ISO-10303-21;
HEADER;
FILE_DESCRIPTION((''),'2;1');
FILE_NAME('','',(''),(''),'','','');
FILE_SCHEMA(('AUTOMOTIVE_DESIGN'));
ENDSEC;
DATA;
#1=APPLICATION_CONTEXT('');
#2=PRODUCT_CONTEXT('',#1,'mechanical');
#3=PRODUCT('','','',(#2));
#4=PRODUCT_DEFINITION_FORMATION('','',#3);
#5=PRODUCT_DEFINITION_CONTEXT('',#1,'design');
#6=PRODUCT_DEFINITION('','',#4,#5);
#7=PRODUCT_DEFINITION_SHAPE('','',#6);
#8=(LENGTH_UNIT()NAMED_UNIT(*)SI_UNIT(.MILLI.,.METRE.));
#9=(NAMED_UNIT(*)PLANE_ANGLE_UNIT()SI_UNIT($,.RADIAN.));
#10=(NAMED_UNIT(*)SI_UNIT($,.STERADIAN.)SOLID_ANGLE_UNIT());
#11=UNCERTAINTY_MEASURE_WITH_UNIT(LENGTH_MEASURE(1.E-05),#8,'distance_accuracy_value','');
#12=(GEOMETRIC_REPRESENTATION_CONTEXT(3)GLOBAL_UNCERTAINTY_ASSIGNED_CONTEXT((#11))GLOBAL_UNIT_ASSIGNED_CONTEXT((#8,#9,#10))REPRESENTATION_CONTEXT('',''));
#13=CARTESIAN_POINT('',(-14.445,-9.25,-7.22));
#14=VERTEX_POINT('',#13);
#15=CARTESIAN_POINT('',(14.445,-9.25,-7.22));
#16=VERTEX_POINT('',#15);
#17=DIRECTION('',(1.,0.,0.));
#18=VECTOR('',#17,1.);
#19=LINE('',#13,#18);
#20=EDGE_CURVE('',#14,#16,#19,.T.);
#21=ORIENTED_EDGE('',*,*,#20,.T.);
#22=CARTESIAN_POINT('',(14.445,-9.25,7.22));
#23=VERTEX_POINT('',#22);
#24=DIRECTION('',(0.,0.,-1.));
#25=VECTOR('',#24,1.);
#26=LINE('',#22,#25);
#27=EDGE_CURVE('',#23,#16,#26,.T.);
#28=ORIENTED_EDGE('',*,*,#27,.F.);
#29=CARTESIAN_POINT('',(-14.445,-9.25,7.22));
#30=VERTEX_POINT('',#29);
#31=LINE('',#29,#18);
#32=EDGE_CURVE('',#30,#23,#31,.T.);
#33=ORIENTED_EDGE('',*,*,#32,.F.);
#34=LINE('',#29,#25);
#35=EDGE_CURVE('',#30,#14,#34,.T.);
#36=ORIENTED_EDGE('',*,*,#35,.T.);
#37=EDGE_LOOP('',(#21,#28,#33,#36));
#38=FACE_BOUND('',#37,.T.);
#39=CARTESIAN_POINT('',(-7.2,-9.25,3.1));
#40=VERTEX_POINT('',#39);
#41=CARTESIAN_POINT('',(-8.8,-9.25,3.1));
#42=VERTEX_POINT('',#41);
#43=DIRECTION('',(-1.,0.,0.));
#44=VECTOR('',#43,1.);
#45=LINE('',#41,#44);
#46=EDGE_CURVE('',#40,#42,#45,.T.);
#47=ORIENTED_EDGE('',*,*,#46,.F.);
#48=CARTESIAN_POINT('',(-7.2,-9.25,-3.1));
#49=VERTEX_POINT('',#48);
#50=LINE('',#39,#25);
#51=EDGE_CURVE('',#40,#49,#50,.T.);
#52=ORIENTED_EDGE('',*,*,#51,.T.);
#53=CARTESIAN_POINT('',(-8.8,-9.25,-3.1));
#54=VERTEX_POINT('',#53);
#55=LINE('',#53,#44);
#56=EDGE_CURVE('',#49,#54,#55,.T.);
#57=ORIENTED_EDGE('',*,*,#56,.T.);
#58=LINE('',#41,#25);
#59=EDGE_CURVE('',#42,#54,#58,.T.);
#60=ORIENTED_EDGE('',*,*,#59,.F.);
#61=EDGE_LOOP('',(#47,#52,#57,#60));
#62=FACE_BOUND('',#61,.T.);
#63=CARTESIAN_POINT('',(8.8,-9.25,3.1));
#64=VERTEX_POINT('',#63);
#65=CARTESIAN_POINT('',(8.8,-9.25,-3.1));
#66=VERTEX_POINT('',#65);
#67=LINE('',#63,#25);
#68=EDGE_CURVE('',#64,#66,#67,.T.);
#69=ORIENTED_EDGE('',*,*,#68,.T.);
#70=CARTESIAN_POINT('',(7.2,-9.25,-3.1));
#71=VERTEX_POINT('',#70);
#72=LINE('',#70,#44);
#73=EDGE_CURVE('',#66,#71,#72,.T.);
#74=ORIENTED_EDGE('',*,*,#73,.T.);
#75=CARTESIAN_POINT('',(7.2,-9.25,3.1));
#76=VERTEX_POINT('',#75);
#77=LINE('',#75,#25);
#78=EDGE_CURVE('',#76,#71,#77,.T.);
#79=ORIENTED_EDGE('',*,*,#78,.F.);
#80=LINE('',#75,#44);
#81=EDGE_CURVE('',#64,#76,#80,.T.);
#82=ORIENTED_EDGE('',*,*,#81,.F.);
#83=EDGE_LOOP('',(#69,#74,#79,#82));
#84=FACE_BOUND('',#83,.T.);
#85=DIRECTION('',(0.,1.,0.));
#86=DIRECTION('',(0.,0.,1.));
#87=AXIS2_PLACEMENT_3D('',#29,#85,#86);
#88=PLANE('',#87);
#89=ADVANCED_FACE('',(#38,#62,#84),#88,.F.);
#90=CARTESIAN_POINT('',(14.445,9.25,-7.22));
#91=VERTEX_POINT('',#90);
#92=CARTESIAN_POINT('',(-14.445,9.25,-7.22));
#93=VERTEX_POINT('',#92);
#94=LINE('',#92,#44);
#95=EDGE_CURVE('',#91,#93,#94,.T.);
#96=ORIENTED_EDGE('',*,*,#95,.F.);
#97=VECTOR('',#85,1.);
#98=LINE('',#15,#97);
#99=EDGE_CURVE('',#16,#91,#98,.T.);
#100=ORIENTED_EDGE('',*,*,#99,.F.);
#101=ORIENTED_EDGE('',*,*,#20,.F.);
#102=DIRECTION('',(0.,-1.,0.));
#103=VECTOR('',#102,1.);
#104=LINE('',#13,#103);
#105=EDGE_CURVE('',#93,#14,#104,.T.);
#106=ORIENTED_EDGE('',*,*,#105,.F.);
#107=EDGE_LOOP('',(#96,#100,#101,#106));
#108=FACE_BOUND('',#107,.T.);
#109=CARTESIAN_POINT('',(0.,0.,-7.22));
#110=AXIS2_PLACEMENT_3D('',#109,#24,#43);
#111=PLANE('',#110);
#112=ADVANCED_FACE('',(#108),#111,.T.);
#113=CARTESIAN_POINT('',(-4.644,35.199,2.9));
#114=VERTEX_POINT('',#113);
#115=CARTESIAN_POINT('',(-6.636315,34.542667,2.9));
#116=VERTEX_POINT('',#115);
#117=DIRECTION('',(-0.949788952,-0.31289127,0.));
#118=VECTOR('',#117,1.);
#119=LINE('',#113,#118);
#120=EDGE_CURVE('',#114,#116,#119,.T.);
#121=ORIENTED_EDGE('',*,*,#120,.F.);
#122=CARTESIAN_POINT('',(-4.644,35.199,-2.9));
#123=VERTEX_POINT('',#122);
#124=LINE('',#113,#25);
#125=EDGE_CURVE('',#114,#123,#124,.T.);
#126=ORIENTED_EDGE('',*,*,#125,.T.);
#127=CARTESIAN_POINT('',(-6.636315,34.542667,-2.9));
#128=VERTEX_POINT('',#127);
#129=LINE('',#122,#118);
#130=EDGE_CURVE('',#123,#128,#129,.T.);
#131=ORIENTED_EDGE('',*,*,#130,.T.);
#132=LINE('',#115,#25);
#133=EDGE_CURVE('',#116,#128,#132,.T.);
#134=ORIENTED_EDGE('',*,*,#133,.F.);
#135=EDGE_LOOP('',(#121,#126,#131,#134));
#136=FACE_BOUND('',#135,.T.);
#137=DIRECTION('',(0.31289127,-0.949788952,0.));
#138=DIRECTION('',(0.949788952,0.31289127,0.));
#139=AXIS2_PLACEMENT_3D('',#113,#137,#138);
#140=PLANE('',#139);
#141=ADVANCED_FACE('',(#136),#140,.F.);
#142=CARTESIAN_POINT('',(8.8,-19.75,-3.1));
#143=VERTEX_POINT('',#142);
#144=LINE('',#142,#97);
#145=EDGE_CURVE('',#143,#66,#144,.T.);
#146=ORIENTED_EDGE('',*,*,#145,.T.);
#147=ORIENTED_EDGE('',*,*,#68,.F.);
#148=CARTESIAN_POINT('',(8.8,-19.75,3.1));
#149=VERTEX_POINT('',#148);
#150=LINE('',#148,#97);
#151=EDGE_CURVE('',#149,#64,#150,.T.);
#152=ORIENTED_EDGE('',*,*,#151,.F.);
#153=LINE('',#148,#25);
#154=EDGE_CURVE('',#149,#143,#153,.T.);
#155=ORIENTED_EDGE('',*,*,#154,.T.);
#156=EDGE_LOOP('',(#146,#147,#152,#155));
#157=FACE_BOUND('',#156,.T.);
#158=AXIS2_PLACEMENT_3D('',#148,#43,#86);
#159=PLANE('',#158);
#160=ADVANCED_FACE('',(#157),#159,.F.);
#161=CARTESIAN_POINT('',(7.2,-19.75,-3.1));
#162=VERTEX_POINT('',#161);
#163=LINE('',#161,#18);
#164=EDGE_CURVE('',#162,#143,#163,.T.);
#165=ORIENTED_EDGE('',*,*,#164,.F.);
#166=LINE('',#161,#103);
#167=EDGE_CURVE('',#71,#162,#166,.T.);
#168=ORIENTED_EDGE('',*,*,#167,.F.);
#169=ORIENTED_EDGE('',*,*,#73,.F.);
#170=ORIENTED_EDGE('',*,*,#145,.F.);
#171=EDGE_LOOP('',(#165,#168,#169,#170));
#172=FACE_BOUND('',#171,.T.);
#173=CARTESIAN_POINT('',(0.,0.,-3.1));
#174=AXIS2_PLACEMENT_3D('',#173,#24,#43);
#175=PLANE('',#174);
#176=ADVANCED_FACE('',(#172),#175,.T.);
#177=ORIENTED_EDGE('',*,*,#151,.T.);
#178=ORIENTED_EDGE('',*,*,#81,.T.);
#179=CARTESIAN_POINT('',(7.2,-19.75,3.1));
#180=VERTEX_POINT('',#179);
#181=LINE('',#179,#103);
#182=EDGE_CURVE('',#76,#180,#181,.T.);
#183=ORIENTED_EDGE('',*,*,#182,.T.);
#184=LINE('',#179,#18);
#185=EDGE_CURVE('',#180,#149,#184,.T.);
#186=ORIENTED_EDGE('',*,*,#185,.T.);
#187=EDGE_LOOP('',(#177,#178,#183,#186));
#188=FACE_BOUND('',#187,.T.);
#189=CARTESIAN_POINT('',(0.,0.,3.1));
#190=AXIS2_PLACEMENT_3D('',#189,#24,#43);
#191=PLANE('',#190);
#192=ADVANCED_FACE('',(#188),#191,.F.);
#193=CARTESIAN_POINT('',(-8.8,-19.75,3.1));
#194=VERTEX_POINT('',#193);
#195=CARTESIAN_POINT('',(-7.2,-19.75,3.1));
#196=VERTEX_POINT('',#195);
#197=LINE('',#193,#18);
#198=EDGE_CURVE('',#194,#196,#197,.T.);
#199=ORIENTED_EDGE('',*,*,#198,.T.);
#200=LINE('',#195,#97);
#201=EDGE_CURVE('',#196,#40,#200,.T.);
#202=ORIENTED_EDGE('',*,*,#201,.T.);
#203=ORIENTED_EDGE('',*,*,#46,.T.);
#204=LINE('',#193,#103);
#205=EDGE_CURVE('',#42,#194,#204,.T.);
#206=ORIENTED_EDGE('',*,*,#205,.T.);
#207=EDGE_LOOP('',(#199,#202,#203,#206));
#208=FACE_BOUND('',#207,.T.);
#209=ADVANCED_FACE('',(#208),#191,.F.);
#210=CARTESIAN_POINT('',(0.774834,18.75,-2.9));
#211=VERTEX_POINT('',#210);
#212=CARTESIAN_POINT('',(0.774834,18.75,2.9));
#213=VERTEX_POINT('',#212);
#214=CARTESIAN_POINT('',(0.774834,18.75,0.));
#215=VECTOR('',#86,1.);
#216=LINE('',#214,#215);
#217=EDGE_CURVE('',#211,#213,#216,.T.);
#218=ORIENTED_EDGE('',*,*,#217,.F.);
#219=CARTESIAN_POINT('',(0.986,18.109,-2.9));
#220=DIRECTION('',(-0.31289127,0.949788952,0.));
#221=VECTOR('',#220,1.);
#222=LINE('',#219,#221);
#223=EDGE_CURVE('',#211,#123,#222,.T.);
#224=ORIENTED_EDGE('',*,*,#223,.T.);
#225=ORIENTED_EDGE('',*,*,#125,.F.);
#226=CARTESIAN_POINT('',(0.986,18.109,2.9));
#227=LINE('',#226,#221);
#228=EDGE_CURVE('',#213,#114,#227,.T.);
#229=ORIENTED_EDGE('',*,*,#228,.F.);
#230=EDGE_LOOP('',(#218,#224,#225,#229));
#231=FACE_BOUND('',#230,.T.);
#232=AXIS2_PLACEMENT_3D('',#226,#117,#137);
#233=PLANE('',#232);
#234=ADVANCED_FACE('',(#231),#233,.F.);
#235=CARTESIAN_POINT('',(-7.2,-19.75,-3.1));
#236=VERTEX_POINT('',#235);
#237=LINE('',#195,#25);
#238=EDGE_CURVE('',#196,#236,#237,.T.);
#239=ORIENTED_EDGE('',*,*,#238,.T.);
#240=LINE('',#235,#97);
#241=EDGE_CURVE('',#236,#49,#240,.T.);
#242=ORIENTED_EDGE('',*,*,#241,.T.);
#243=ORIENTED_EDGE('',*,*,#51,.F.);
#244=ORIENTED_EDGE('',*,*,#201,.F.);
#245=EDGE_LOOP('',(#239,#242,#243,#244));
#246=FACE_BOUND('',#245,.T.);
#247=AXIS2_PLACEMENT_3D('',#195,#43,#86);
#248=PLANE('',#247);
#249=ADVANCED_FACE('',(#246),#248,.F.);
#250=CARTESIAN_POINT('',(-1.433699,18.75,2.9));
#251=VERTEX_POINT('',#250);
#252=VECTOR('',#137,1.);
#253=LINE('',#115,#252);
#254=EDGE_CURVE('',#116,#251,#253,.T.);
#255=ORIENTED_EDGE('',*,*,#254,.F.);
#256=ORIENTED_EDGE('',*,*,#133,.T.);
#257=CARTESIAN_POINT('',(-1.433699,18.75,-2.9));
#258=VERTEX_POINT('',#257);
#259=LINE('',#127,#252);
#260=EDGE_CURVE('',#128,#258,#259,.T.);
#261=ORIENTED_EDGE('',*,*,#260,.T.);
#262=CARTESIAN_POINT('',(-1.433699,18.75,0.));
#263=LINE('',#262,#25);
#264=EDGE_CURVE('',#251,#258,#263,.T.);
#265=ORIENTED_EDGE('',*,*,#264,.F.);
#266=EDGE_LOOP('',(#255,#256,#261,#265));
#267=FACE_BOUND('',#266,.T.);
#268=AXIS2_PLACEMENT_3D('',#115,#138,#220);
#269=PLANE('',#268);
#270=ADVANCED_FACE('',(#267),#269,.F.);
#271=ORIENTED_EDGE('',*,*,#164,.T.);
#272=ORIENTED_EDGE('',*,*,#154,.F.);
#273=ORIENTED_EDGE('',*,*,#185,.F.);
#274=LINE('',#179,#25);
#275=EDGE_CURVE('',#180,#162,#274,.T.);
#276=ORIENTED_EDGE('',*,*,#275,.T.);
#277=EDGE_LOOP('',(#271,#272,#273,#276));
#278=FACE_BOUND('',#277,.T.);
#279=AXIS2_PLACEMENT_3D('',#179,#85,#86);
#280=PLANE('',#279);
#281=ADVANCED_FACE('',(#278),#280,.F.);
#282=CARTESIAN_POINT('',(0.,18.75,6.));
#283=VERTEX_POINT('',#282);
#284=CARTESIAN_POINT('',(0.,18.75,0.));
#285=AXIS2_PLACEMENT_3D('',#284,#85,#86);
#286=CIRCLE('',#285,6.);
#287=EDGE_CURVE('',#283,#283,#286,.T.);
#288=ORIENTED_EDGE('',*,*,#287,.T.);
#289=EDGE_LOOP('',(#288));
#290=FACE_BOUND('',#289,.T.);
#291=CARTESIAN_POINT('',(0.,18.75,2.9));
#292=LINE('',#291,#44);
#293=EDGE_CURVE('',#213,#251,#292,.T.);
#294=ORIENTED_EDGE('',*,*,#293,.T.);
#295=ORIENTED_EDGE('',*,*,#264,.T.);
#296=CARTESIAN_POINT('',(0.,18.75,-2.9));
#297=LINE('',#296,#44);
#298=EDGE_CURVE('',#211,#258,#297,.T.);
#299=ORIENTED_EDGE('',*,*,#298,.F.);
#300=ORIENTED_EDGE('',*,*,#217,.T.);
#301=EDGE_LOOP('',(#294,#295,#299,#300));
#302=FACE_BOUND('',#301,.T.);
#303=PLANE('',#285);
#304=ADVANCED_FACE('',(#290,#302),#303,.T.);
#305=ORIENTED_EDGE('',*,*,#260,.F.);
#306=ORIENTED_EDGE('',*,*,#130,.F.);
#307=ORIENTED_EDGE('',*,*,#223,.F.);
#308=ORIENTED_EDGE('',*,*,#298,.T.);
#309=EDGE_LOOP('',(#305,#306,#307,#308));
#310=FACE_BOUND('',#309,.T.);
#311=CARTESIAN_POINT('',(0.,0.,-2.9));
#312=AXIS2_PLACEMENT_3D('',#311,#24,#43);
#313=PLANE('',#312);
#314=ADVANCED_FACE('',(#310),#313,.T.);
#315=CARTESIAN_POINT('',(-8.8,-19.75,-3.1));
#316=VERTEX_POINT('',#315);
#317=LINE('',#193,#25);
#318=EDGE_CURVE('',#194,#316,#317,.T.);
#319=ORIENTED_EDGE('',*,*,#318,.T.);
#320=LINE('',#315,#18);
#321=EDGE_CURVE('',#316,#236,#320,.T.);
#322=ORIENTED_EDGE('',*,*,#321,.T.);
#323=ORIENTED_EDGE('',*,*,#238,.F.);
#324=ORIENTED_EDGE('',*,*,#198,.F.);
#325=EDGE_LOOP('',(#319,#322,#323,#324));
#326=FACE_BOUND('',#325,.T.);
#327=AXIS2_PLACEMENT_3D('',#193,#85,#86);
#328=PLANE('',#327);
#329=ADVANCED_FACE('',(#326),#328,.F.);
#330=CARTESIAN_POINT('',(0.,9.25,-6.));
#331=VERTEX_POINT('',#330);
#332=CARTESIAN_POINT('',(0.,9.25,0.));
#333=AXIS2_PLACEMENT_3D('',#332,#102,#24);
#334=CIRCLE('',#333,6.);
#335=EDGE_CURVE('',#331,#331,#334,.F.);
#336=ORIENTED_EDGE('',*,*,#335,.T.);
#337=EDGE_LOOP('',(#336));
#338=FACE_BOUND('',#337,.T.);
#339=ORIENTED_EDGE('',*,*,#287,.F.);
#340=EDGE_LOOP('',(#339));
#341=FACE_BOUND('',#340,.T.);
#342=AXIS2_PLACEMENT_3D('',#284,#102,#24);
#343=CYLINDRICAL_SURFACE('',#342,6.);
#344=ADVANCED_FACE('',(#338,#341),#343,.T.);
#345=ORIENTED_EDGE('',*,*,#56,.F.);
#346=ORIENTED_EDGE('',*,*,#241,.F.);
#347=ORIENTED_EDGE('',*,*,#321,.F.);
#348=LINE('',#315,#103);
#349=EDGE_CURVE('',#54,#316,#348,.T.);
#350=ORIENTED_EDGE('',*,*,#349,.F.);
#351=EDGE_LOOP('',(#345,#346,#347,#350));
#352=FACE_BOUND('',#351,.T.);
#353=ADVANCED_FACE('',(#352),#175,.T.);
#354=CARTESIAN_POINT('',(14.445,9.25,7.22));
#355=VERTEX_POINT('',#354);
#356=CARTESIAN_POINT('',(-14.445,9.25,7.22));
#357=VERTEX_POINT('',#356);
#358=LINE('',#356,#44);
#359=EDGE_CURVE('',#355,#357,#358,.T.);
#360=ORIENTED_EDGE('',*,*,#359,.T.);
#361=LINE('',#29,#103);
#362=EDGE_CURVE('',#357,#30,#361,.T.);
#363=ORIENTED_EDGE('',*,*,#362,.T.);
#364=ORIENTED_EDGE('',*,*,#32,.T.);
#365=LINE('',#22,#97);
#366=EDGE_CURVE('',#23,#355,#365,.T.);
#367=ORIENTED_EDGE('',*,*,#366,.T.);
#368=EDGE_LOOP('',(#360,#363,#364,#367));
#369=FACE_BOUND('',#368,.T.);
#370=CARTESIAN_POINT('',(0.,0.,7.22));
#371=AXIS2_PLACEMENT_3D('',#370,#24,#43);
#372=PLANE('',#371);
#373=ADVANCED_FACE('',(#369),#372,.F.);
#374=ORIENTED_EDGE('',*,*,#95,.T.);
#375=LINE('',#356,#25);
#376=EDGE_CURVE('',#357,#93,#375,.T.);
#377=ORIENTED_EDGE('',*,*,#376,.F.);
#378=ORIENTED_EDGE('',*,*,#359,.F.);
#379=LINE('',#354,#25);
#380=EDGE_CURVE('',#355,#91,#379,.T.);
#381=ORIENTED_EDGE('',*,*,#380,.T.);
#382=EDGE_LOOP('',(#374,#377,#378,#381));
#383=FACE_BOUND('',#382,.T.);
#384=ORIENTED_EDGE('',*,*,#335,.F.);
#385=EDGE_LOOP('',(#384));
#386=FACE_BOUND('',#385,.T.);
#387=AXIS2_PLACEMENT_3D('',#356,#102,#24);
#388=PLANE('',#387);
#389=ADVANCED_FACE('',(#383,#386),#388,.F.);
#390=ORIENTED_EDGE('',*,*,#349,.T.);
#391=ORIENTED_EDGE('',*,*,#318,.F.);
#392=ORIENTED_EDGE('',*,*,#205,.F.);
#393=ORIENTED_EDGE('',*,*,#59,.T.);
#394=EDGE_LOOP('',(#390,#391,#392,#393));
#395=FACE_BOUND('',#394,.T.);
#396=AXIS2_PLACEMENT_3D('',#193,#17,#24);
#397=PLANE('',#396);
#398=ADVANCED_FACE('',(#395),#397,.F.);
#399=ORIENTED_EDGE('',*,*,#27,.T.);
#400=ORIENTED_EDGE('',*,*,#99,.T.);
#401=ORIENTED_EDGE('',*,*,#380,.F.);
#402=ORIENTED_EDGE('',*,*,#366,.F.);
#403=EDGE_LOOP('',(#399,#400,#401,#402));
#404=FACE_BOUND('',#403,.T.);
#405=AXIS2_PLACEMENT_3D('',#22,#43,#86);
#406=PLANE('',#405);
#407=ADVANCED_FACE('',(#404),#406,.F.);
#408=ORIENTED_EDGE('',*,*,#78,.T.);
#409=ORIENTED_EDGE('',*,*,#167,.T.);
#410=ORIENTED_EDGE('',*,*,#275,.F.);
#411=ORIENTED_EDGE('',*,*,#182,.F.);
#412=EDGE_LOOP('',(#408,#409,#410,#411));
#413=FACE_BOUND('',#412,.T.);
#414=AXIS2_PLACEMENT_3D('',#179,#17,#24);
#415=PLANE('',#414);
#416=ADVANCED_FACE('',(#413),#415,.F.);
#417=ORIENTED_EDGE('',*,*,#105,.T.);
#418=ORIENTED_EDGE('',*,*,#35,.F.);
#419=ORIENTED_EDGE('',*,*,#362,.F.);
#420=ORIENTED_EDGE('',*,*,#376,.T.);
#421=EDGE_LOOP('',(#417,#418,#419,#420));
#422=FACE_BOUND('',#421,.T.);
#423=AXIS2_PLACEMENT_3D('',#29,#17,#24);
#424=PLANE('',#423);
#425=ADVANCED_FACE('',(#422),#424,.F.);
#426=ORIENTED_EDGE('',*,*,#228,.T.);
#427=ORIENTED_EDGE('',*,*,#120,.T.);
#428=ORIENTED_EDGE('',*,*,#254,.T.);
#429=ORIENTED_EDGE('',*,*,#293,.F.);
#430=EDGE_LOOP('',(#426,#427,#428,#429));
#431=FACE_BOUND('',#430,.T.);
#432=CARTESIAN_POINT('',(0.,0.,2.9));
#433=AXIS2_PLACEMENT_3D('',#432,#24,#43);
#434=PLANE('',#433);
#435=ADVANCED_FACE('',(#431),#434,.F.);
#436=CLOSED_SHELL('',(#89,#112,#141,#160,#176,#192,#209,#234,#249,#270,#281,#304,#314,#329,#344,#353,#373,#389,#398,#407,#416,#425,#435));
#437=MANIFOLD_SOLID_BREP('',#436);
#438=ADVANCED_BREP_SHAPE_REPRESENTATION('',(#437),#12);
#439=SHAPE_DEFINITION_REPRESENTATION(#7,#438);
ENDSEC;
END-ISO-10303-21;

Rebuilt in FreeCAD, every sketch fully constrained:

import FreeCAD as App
import Part
import Sketcher

V = App.Vector

doc = App.newDocument("Part")
body = doc.addObject("PartDesign::Body", "Body")

# Sketch on XY plane
sketch1 = body.newObject("Sketcher::SketchObject", "Sketch")
sketch1.AttachmentSupport = (doc.getObject("XY_Plane"), [""])
sketch1.MapMode = "FlatFace"
sketch1.addGeometry([
    Part.LineSegment(V(-14, 9, 0), V(-14, -9, 0)),
    Part.LineSegment(V(-14, -9, 0), V(14, -9, 0)),
    Part.LineSegment(V(14, -9, 0), V(14, 9, 0)),
    Part.LineSegment(V(14, 9, 0), V(-14, 9, 0)),
], False)
sketch1.addConstraint([
    Sketcher.Constraint("Coincident", 0, 2, 1, 1),
    Sketcher.Constraint("Coincident", 1, 2, 2, 1),
    Sketcher.Constraint("Coincident", 2, 2, 3, 1),
    Sketcher.Constraint("Coincident", 3, 2, 0, 1),
    Sketcher.Constraint("Vertical", 0),
    Sketcher.Constraint("Horizontal", 1),
    Sketcher.Constraint("Vertical", 2),
    Sketcher.Constraint("Horizontal", 3),
    Sketcher.Constraint("Symmetric", 0, 2, 2, 2, -1, 1),
    Sketcher.Constraint("DistanceY", 0, 2, 0, 1, 18.5),
    Sketcher.Constraint("DistanceX", 1, 1, 1, 2, 28.89),
])
pad1 = body.newObject("PartDesign::Pad", "Pad")
pad1.Profile = sketch1
pad1.Length = 14.44
pad1.Midplane = True

# Sketch on XZ plane
sketch2 = body.newObject("Sketcher::SketchObject", "Sketch001")
sketch2.AttachmentSupport = (doc.getObject("XZ_Plane"), [""])
sketch2.MapMode = "FlatFace"
sketch2.addGeometry(Part.Circle(V(0, 0, 0), V(0, 0, 1), 6), False)
sketch2.addConstraint([
    Sketcher.Constraint("Coincident", 0, 3, -1, 1),
    Sketcher.Constraint("Diameter", 0, 12.0),
])
pad2 = body.newObject("PartDesign::Pad", "Pad001")
pad2.Profile = sketch2
pad2.Length = 18.75
pad2.Reversed = True

# Sketch on XY plane
sketch3 = body.newObject("Sketcher::SketchObject", "Sketch002")
sketch3.AttachmentSupport = (doc.getObject("XY_Plane"), [""])
sketch3.MapMode = "FlatFace"
sketch3.addGeometry([
    Part.LineSegment(V(-1, 17.4, 0), V(1, 18.1, 0)),
    Part.LineSegment(V(1, 18.1, 0), V(-4.6, 35.2, 0)),
    Part.LineSegment(V(-4.6, 35.2, 0), V(-6.6, 34.5, 0)),
    Part.LineSegment(V(-6.6, 34.5, 0), V(-1, 17.4, 0)),
], False)
sketch3.addConstraint([
    Sketcher.Constraint("Coincident", 0, 2, 1, 1),
    Sketcher.Constraint("Coincident", 1, 2, 2, 1),
    Sketcher.Constraint("Coincident", 2, 2, 3, 1),
    Sketcher.Constraint("Coincident", 3, 2, 0, 1),
    Sketcher.Constraint("Perpendicular", 1, 2),
    Sketcher.Constraint("Perpendicular", 2, 3),
    Sketcher.Constraint("DistanceX", 1, 2, 0, 2, 5.63),
    Sketcher.Constraint("DistanceY", 0, 2, 1, 2, 17.09),
    Sketcher.Constraint("DistanceX", -1, 1, 0, 2, 0.986),
    Sketcher.Constraint("DistanceY", -1, 1, 0, 2, 18.109),
    Sketcher.Constraint("DistanceX", 3, 2, -1, 1, 0.986),
    Sketcher.Constraint("DistanceY", -1, 1, 3, 2, 17.391),
])
pad3 = body.newObject("PartDesign::Pad", "Pad002")
pad3.Profile = sketch3
pad3.Length = 5.8
pad3.Midplane = True

# Sketch on XY plane
sketch4 = body.newObject("Sketcher::SketchObject", "Sketch003")
sketch4.AttachmentSupport = (doc.getObject("XY_Plane"), [""])
sketch4.MapMode = "FlatFace"
sketch4.addGeometry([
    Part.LineSegment(V(-8.8, -9.2, 0), V(-8.8, -19.8, 0)),  # 0
    Part.LineSegment(V(-8.8, -19.8, 0), V(-7.2, -19.8, 0)),  # 1
    Part.LineSegment(V(-7.2, -19.8, 0), V(-7.2, -9.2, 0)),  # 2
    Part.LineSegment(V(-7.2, -9.2, 0), V(-8.8, -9.2, 0)),  # 3
    Part.LineSegment(V(7.2, -9.2, 0), V(7.2, -19.8, 0)),  # 4
    Part.LineSegment(V(7.2, -19.8, 0), V(8.8, -19.8, 0)),  # 5
    Part.LineSegment(V(8.8, -19.8, 0), V(8.8, -9.2, 0)),  # 6
    Part.LineSegment(V(8.8, -9.2, 0), V(7.2, -9.2, 0)),  # 7
], False)
sketch4.addConstraint([
    Sketcher.Constraint("Coincident", 0, 2, 1, 1),
    Sketcher.Constraint("Coincident", 1, 2, 2, 1),
    Sketcher.Constraint("Coincident", 2, 2, 3, 1),
    Sketcher.Constraint("Coincident", 3, 2, 0, 1),
    Sketcher.Constraint("Coincident", 4, 2, 5, 1),
    Sketcher.Constraint("Coincident", 5, 2, 6, 1),
    Sketcher.Constraint("Coincident", 6, 2, 7, 1),
    Sketcher.Constraint("Coincident", 7, 2, 4, 1),
    Sketcher.Constraint("Vertical", 0),
    Sketcher.Constraint("Horizontal", 1),
    Sketcher.Constraint("Vertical", 2),
    Sketcher.Constraint("Horizontal", 3),
    Sketcher.Constraint("Vertical", 4),
    Sketcher.Constraint("Horizontal", 5),
    Sketcher.Constraint("Vertical", 6),
    Sketcher.Constraint("Horizontal", 7),
    Sketcher.Constraint("Symmetric", 1, 2, 4, 2, -2),
    Sketcher.Constraint("Symmetric", 3, 2, 6, 2, -2),
    Sketcher.Constraint("DistanceX", 1, 1, 1, 2, 1.6),
    Sketcher.Constraint("DistanceY", 0, 2, 0, 1, 10.5),
    Sketcher.Constraint("DistanceX", 0, 2, 4, 2, 16.0),
    Sketcher.Constraint("DistanceY", 0, 2, -1, 1, 19.75),
])
pad4 = body.newObject("PartDesign::Pad", "Pad003")
pad4.Profile = sketch4
pad4.Length = 6.2
pad4.Midplane = True

doc.recompute()
